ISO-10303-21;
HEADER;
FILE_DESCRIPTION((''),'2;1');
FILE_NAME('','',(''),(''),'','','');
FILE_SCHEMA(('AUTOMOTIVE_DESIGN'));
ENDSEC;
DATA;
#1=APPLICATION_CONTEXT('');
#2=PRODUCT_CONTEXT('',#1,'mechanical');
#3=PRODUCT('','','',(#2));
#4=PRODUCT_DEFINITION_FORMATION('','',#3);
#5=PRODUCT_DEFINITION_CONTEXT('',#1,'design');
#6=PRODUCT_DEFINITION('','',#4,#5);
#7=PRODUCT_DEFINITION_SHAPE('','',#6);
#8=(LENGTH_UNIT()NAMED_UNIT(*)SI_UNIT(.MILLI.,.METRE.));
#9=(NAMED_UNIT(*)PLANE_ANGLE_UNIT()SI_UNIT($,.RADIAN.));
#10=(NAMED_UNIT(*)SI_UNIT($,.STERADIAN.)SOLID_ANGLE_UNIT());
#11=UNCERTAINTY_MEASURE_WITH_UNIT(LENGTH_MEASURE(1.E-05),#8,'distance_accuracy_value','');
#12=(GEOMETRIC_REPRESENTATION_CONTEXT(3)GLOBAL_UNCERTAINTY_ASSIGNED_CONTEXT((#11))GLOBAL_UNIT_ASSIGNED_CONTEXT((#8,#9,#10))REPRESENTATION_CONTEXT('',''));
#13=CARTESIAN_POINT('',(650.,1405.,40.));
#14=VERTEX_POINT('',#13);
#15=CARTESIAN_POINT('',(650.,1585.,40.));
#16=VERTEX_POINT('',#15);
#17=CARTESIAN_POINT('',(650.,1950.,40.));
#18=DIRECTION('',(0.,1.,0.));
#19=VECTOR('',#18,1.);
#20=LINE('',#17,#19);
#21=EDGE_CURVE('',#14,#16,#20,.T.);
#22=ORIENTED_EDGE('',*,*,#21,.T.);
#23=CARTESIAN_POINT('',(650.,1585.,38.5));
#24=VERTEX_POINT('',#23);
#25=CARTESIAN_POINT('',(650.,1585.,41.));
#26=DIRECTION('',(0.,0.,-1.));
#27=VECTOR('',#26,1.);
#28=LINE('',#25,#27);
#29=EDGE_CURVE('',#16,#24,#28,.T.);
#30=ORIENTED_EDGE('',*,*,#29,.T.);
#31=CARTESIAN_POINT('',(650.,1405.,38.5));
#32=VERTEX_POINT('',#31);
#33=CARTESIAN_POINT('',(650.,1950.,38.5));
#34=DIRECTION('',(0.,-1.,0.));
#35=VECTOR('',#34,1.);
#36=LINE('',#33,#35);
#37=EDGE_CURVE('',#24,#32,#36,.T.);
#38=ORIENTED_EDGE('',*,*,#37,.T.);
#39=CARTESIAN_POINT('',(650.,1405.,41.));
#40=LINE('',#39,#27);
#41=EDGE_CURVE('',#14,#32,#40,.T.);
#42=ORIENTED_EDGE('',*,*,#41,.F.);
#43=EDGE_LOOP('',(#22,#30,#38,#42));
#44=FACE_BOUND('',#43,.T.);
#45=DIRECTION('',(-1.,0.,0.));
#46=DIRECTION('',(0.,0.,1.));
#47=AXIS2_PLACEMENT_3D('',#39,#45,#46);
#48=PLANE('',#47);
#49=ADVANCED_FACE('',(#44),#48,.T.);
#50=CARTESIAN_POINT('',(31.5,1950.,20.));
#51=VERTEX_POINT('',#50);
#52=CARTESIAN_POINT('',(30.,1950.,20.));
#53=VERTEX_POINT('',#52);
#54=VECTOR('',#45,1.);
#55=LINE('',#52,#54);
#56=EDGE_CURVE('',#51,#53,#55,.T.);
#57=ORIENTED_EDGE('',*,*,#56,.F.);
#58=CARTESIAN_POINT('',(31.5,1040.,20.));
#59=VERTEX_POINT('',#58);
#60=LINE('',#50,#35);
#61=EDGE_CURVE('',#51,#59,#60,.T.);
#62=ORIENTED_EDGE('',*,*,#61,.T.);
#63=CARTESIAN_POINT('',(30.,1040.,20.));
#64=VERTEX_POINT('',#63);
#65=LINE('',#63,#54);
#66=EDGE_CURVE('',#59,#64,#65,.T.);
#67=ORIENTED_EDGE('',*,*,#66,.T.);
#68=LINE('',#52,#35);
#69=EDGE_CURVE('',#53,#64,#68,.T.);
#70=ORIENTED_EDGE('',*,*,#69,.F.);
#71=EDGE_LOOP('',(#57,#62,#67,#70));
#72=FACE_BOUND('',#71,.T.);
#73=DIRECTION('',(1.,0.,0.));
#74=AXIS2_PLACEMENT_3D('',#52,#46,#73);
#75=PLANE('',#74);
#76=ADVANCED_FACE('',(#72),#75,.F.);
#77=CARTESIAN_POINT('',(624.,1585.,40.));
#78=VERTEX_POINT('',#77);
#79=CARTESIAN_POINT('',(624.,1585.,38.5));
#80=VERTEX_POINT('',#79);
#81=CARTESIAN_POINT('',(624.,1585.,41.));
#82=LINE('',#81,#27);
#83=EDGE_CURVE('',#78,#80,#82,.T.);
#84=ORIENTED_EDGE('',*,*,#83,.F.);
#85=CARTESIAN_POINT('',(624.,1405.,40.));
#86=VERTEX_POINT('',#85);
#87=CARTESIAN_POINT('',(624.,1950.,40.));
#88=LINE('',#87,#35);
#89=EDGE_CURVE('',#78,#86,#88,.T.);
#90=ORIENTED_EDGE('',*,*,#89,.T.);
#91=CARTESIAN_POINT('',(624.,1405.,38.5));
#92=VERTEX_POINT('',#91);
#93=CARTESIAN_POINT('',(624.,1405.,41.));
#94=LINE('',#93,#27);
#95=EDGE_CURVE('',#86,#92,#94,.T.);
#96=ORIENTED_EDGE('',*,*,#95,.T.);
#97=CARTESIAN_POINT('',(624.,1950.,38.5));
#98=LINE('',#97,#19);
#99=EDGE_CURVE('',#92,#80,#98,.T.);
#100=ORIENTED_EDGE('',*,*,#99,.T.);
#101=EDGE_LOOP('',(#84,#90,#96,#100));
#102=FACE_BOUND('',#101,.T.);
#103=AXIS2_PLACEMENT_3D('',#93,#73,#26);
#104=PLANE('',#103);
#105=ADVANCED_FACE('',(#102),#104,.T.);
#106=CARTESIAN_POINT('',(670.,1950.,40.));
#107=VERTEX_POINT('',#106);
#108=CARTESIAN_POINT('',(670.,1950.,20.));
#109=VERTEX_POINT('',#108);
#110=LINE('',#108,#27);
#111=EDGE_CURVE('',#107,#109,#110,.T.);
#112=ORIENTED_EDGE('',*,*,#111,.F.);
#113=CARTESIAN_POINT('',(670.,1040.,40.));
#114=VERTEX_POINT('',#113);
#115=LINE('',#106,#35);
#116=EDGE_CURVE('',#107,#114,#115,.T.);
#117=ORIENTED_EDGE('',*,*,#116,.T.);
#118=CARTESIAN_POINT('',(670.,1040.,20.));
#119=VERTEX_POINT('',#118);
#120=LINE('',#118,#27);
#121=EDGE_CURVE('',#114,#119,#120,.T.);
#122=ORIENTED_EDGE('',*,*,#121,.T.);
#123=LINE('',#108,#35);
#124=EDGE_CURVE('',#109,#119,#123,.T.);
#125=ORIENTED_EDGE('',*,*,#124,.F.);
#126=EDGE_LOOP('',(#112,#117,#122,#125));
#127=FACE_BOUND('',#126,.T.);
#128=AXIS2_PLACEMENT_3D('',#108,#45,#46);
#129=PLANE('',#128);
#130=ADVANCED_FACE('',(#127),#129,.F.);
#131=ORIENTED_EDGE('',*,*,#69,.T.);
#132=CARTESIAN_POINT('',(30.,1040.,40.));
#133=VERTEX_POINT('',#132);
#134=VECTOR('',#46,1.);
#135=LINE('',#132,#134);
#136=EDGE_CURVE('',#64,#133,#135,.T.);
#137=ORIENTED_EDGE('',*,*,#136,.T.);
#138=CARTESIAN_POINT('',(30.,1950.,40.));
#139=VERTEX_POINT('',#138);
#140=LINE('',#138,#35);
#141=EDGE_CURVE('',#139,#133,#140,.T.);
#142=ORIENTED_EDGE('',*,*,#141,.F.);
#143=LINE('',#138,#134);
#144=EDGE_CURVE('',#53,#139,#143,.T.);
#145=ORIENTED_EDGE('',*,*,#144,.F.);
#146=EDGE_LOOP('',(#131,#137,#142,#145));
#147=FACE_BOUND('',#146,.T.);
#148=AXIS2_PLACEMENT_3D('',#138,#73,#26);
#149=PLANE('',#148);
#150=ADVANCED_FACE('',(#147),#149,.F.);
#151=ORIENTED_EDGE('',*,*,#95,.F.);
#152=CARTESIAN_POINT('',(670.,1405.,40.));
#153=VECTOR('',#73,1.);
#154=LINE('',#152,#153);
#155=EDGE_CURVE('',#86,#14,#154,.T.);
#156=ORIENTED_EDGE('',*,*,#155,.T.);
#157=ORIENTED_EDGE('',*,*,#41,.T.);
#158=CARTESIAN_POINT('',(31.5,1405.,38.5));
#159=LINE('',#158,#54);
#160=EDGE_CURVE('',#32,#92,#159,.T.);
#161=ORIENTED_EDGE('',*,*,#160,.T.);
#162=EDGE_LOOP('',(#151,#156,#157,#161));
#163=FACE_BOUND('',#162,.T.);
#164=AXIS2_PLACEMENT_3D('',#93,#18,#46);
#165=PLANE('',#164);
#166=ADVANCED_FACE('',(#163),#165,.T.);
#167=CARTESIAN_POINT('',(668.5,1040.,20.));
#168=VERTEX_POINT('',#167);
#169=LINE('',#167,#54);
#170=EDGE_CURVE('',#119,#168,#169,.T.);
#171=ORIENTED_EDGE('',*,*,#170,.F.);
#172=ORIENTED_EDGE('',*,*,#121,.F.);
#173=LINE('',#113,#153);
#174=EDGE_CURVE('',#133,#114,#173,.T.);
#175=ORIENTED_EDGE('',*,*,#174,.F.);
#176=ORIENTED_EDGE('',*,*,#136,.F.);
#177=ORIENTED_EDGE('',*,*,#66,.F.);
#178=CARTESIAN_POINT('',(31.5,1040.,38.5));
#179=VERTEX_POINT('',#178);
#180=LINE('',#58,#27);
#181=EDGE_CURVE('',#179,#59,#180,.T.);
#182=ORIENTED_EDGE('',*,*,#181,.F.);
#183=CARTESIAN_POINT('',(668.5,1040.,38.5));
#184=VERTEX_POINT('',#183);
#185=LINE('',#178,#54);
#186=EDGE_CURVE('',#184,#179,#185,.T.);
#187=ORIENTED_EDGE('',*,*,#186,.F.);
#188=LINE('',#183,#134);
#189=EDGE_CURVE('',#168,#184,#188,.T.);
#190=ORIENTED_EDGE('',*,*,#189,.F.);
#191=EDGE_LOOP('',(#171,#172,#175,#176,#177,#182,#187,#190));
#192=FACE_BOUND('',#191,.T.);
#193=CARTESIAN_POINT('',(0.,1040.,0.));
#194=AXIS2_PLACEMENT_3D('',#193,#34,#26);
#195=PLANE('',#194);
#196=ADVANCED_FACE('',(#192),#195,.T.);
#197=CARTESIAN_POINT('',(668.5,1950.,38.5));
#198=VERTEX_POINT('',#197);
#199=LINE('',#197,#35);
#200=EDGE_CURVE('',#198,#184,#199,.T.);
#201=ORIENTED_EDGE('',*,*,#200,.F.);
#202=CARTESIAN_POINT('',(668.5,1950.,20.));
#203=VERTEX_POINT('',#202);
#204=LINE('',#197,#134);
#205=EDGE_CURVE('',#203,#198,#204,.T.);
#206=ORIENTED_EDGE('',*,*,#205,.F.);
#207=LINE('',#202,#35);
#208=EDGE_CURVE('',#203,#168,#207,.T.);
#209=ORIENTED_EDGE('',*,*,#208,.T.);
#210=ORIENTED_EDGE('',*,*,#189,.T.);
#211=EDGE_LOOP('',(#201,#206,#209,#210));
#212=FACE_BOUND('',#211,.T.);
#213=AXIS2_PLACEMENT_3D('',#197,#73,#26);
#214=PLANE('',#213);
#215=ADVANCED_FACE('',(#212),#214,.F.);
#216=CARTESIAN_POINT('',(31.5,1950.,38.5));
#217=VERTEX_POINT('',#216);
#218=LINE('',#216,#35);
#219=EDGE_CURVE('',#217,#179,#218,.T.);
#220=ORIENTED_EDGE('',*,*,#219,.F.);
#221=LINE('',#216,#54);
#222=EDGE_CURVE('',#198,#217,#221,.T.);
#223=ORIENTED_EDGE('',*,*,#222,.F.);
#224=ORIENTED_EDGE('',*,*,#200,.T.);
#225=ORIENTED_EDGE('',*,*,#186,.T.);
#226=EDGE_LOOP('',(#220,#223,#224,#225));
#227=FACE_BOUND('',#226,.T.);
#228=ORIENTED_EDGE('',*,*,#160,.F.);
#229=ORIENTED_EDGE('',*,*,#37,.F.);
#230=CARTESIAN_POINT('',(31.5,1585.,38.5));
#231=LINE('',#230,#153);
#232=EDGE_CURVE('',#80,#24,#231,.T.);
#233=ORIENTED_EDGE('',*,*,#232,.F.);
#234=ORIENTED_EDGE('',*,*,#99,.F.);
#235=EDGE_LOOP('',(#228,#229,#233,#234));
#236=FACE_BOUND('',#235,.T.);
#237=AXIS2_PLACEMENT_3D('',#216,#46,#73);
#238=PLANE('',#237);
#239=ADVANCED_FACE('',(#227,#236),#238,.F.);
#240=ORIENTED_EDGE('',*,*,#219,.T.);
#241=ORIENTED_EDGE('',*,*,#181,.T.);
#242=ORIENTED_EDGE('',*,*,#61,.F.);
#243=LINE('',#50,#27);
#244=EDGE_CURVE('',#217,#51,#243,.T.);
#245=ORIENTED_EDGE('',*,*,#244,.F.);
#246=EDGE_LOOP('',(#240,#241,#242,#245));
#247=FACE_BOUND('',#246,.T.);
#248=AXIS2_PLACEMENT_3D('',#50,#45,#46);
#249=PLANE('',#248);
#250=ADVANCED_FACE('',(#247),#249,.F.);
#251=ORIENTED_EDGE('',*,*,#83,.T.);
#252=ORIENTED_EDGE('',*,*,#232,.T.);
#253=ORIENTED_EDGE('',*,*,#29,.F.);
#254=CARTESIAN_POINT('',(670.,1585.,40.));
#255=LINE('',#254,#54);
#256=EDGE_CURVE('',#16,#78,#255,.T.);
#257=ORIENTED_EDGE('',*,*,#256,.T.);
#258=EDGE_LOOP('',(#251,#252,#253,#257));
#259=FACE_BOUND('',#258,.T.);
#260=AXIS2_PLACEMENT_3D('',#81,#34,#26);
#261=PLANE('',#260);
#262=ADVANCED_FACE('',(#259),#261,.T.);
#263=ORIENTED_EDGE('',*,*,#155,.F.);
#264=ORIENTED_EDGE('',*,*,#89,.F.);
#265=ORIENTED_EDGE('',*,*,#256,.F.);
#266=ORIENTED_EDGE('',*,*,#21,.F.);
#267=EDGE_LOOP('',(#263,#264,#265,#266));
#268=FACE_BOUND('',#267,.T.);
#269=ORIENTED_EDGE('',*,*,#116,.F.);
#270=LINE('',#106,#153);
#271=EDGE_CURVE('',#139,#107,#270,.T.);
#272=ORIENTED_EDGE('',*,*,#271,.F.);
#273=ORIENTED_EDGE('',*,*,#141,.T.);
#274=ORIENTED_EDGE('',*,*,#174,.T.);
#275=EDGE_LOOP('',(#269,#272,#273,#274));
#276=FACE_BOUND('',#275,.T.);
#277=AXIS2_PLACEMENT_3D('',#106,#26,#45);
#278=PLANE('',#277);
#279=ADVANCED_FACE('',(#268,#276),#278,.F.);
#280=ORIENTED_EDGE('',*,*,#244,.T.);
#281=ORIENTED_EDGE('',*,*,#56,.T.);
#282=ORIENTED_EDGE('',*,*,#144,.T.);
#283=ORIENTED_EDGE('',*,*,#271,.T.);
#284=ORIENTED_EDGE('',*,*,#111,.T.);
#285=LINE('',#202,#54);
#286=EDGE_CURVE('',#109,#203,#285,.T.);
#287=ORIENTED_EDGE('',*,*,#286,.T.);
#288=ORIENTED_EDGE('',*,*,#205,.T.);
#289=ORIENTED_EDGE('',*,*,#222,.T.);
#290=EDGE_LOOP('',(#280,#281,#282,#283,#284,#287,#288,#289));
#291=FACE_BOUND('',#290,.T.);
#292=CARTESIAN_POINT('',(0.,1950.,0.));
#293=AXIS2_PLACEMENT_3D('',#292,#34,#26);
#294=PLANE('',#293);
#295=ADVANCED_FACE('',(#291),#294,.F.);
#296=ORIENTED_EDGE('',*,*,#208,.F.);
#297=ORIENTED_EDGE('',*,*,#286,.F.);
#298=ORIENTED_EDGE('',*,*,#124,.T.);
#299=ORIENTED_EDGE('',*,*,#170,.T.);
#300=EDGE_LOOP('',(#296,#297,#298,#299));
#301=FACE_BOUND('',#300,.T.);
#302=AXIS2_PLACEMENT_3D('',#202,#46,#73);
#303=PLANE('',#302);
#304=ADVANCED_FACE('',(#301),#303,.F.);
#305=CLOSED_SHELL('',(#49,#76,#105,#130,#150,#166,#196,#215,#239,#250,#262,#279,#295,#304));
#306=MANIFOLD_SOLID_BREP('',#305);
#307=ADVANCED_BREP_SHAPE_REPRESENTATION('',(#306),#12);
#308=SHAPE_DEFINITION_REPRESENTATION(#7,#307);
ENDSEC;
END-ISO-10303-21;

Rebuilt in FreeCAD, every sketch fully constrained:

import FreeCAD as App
import Part
import Sketcher

doc = App.newDocument("Part")
body = doc.addObject("PartDesign::Body", "Body")

# Sketch on XZ plane
sketch1 = body.newObject("Sketcher::SketchObject", "Sketch")
sketch1.AttachmentSupport = (doc.getObject("XZ_Plane"), [""])
sketch1.MapMode = "FlatFace"
sketch1.AttachmentOffset = App.Placement(App.Vector(0, 0, -1040), App.Rotation())
sketch1.addGeometry([
    Part.LineSegment(App.Vector(30, 20, 0), App.Vector(30, 40, 0)),  # 0
    Part.LineSegment(App.Vector(30, 40, 0), App.Vector(670, 40, 0)),  # 1
    Part.LineSegment(App.Vector(670, 40, 0), App.Vector(670, 20, 0)),  # 2
    Part.LineSegment(App.Vector(670, 20, 0), App.Vector(668.5, 20, 0)),  # 3
    Part.LineSegment(App.Vector(668.5, 20, 0), App.Vector(668.5, 38.5, 0)),  # 4
    Part.LineSegment(App.Vector(668.5, 38.5, 0), App.Vector(31.5, 38.5, 0)),  # 5
    Part.LineSegment(App.Vector(31.5, 38.5, 0), App.Vector(31.5, 20, 0)),  # 6
    Part.LineSegment(App.Vector(31.5, 20, 0), App.Vector(30, 20, 0)),  # 7
], False)
sketch1.addConstraint([
    Sketcher.Constraint("Coincident", 0, 2, 1, 1),
    Sketcher.Constraint("Coincident", 1, 2, 2, 1),
    Sketcher.Constraint("Coincident", 2, 2, 3, 1),
    Sketcher.Constraint("Coincident", 3, 2, 4, 1),
    Sketcher.Constraint("Coincident", 4, 2, 5, 1),
    Sketcher.Constraint("Coincident", 5, 2, 6, 1),
    Sketcher.Constraint("Coincident", 6, 2, 7, 1),
    Sketcher.Constraint("Coincident", 7, 2, 0, 1),
    Sketcher.Constraint("Vertical", 0),
    Sketcher.Constraint("Horizontal", 1),
    Sketcher.Constraint("Vertical", 2),
    Sketcher.Constraint("Horizontal", 3),
    Sketcher.Constraint("Vertical", 4),
    Sketcher.Constraint("Horizontal", 5),
    Sketcher.Constraint("Vertical", 6),
    Sketcher.Constraint("Horizontal", 7),
    Sketcher.Constraint("Horizontal", 3, 2, 6, 2),
    Sketcher.Constraint("Equal", 3, 7),
    Sketcher.Constraint("DistanceX", 1, 1, 1, 2, 640.0),
    Sketcher.Constraint("DistanceX", 5, 2, 5, 1, 637.0),
    Sketcher.Constraint("DistanceY", 0, 1, 0, 2, 20.0),
    Sketcher.Constraint("DistanceY", 4, 1, 4, 2, 18.5),
    Sketcher.Constraint("DistanceX", -1, 1, 0, 2, 30.0),
    Sketcher.Constraint("DistanceY", -1, 1, 0, 2, 40.0),
])
pad1 = body.newObject("PartDesign::Pad", "Pad")
pad1.Profile = sketch1
pad1.Length = 910
pad1.Reversed = True

# Sketch on XY plane
sketch2 = body.newObject("Sketcher::SketchObject", "Sketch001")
sketch2.AttachmentSupport = (doc.getObject("XY_Plane"), [""])
sketch2.MapMode = "FlatFace"
sketch2.AttachmentOffset = App.Placement(App.Vector(0, 0, 27), App.Rotation())
sketch2.addGeometry([
    Part.LineSegment(App.Vector(624, 1585, 0), App.Vector(624, 1405, 0)),
    Part.LineSegment(App.Vector(624, 1405, 0), App.Vector(650, 1405, 0)),
    Part.LineSegment(App.Vector(650, 1405, 0), App.Vector(650, 1585, 0)),
    Part.LineSegment(App.Vector(650, 1585, 0), App.Vector(624, 1585, 0)),
], False)
sketch2.addConstraint([
    Sketcher.Constraint("Coincident", 0, 2, 1, 1),
    Sketcher.Constraint("Coincident", 1, 2, 2, 1),
    Sketcher.Constraint("Coincident", 2, 2, 3, 1),
    Sketcher.Constraint("Coincident", 3, 2, 0, 1),
    Sketcher.Constraint("Vertical", 0),
    Sketcher.Constraint("Horizontal", 1),
    Sketcher.Constraint("Vertical", 2),
    Sketcher.Constraint("Horizontal", 3),
    Sketcher.Constraint("DistanceX", 1, 1, 1, 2, 26.0),
    Sketcher.Constraint("DistanceY", 0, 2, 0, 1, 180.0),
    Sketcher.Constraint("DistanceX", -1, 1, 0, 2, 624.0),
    Sketcher.Constraint("DistanceY", -1, 1, 0, 2, 1405.0),
])
pocket1 = body.newObject("PartDesign::Pocket", "Pocket")
pocket1.Profile = sketch2
pocket1.Length = 14
pocket1.Reversed = True

doc.recompute()
